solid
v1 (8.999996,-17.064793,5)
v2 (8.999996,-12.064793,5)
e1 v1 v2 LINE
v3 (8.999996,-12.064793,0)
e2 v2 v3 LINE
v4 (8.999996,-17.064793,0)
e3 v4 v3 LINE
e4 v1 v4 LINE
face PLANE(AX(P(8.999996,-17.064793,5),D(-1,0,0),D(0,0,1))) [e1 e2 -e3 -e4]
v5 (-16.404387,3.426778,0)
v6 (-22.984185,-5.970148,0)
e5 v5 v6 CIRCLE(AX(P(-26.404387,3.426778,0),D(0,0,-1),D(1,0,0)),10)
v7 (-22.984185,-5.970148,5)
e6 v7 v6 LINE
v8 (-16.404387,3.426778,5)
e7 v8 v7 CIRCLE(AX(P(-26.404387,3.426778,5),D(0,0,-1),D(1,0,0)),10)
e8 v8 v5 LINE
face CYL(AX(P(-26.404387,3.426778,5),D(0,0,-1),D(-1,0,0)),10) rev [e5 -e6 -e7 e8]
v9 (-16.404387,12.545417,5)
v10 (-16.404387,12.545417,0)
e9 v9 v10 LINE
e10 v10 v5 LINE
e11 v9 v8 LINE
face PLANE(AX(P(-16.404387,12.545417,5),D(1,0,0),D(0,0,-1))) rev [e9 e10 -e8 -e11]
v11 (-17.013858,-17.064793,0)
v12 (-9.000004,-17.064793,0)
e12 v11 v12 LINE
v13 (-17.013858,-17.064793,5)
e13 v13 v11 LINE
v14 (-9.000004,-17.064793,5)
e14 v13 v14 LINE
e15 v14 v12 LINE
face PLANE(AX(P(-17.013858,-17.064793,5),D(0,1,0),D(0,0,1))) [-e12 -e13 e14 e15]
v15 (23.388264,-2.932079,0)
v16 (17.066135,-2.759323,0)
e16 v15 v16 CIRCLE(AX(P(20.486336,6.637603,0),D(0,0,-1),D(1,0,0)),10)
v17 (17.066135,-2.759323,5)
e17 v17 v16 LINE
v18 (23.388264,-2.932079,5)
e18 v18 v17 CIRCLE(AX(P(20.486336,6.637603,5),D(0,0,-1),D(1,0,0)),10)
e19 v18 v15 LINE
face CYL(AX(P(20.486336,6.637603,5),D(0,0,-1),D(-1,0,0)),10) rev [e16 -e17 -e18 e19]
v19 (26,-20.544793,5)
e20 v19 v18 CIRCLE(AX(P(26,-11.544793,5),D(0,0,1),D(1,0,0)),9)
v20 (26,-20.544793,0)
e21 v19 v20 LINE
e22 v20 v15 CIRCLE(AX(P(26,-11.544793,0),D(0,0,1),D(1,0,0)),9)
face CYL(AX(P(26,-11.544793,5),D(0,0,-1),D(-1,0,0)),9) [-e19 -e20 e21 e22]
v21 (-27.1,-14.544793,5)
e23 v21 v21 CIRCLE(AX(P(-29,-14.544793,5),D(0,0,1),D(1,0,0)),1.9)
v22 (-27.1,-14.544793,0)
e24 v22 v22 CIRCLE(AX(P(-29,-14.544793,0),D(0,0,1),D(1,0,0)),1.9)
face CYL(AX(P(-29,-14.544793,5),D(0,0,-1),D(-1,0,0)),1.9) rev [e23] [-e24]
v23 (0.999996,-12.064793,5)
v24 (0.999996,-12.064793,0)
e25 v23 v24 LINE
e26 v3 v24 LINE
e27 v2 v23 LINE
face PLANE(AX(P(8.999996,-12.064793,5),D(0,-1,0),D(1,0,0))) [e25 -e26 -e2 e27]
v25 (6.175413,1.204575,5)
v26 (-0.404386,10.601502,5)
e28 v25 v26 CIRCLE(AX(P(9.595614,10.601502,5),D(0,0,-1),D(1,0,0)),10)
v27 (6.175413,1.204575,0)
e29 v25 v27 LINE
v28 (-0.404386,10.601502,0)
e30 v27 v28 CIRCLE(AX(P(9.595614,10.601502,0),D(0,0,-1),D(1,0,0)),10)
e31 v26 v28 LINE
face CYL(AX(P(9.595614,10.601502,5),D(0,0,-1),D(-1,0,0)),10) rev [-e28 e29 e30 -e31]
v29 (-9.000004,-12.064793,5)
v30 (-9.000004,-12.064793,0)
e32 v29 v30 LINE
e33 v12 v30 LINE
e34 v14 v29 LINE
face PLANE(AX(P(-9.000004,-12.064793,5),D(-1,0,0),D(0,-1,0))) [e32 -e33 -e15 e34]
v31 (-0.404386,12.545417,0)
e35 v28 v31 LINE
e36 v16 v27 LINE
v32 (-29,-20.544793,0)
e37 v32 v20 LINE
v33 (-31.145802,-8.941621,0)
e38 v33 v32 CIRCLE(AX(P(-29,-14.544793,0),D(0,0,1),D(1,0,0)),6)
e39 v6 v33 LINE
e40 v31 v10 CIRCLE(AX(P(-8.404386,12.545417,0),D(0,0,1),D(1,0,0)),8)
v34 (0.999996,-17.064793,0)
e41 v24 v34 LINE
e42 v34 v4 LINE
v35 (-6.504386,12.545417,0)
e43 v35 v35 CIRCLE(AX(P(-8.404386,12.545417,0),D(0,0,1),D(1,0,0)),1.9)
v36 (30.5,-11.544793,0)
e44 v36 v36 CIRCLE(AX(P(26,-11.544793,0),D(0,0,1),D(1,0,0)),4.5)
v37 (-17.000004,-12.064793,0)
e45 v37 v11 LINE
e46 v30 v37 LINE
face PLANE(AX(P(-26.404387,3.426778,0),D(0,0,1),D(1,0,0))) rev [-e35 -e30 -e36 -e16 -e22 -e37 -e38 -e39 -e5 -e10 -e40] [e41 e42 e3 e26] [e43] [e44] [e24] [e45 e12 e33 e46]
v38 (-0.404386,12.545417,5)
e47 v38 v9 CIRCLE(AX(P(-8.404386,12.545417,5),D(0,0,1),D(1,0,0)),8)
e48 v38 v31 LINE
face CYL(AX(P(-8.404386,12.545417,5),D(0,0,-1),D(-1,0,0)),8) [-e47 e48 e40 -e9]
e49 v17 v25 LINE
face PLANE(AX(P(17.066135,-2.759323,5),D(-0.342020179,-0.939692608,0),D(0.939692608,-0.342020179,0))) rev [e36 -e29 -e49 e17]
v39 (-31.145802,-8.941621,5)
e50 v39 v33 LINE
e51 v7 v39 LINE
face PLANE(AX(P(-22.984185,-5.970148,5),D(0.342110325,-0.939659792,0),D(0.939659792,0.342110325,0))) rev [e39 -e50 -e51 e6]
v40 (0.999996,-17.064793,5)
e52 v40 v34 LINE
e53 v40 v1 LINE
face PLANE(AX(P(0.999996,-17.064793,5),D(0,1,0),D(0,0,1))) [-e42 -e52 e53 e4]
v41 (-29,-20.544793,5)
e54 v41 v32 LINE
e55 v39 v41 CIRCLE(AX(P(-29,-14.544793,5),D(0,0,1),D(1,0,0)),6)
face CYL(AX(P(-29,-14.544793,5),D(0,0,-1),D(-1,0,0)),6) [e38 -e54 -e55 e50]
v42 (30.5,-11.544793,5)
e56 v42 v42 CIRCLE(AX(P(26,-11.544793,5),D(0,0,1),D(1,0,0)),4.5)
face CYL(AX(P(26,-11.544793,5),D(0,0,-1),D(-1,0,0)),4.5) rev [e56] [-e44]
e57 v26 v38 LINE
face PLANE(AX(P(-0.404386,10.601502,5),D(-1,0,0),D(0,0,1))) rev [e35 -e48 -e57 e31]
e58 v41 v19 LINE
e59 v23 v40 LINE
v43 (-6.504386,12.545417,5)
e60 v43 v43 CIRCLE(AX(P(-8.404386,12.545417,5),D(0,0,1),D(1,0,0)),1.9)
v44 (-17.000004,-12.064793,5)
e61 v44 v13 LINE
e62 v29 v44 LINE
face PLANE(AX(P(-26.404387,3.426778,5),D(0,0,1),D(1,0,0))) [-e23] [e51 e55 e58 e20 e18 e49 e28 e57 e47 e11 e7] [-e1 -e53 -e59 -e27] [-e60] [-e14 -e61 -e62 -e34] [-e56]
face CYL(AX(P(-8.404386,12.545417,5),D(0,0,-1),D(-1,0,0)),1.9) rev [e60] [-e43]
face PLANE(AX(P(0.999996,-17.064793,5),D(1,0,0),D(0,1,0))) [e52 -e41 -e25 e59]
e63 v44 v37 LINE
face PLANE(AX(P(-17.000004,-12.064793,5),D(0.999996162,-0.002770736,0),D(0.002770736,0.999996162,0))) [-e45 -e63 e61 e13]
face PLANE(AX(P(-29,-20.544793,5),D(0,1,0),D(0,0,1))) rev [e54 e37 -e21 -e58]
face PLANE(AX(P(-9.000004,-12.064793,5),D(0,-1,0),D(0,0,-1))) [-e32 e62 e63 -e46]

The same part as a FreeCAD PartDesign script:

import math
import FreeCAD as App
import Part
import Sketcher

V = App.Vector
Q = App.Units.Quantity

doc = App.newDocument("Part")
body = doc.addObject("PartDesign::Body", "Body")

sketch1 = body.newObject("Sketcher::SketchObject", "Sketch")
sketch1.AttachmentSupport = (doc.getObject("XY_Plane"), [""])
sketch1.MapMode = "FlatFace"
sketch1.addGeometry([
    Part.LineSegment(V(-23, -6, 0), V(-31.1, -8.9, 0)),
    Part.ArcOfCircle(Part.Circle(V(-29, -14.5, 0), V(0, 0, 1), 6), math.radians(111), math.radians(270)),
    Part.LineSegment(V(-29, -20.5, 0), V(26, -20.5, 0)),
    Part.ArcOfCircle(Part.Circle(V(26, -11.5, 0), V(0, 0, 1), 9), math.radians(-90), math.radians(107)),
    Part.ArcOfCircle(Part.Circle(V(20.5, 6.6, 0), V(0, 0, 1), 10), math.radians(-110), math.radians(-73)),
    Part.LineSegment(V(17.1, -2.8, 0), V(6.2, 1.2, 0)),
    Part.ArcOfCircle(Part.Circle(V(9.6, 10.6, 0), V(0, 0, 1), 10), math.radians(180), math.radians(250)),
    Part.LineSegment(V(-0.4, 10.6, 0), V(-0.4, 12.5, 0)),
    Part.ArcOfCircle(Part.Circle(V(-8.4, 12.5, 0), V(0, 0, 1), 8), math.radians(0), math.radians(180)),
    Part.LineSegment(V(-16.4, 12.5, 0), V(-16.4, 3.4, 0)),
    Part.ArcOfCircle(Part.Circle(V(-26.4, 3.4, 0), V(0, 0, 1), 10), math.radians(-70), math.radians(0)),
    Part.Circle(V(-29, -14.5, 0), V(0, 0, 1), 1.9),
    Part.LineSegment(V(-17, -17.1, 0), V(-17, -12.1, 0)),
    Part.LineSegment(V(-17, -12.1, 0), V(-9, -12.1, 0)),
    Part.LineSegment(V(-9, -12.1, 0), V(-9, -17.1, 0)),
    Part.LineSegment(V(-9, -17.1, 0), V(-17, -17.1, 0)),
    Part.LineSegment(V(9, -17.1, 0), V(1, -17.1, 0)),
    Part.LineSegment(V(1, -17.1, 0), V(1, -12.1, 0)),
    Part.LineSegment(V(1, -12.1, 0), V(9, -12.1, 0)),
    Part.LineSegment(V(9, -12.1, 0), V(9, -17.1, 0)),
    Part.Circle(V(26, -11.5, 0), V(0, 0, 1), 4.5),
    Part.Circle(V(-8.4, 12.5, 0), V(0, 0, 1), 1.9),
], False)
sketch1.addConstraint([
    Sketcher.Constraint("Coincident", 0, 2, 1, 1),
    Sketcher.Constraint("Tangent", 1, 2, 2, 1),
    Sketcher.Constraint("Tangent", 2, 2, 3, 1),
    Sketcher.Constraint("Tangent", 3, 2, 4, 2),
    Sketcher.Constraint("Tangent", 4, 1, 5, 1),
    Sketcher.Constraint("Tangent", 5, 2, 6, 2),
    Sketcher.Constraint("Tangent", 6, 1, 7, 1),
    Sketcher.Constraint("Tangent", 7, 2, 8, 1),
    Sketcher.Constraint("Tangent", 8, 2, 9, 1),
    Sketcher.Constraint("Tangent", 9, 2, 10, 2),
    Sketcher.Constraint("Coincident", 10, 1, 0, 1),
    Sketcher.Constraint("Coincident", 12, 2, 13, 1),
    Sketcher.Constraint("Coincident", 13, 2, 14, 1),
    Sketcher.Constraint("Coincident", 14, 2, 15, 1),
    Sketcher.Constraint("Coincident", 15, 2, 12, 1),
    Sketcher.Constraint("Coincident", 16, 2, 17, 1),
    Sketcher.Constraint("Coincident", 17, 2, 18, 1),
    Sketcher.Constraint("Coincident", 18, 2, 19, 1),
    Sketcher.Constraint("Coincident", 19, 2, 16, 1),
    Sketcher.Constraint("Horizontal", 2),
    Sketcher.Constraint("Vertical", 7),
    Sketcher.Constraint("Vertical", 9),
    Sketcher.Constraint("Horizontal", 13),
    Sketcher.Constraint("Vertical", 14),
    Sketcher.Constraint("Horizontal", 15),
    Sketcher.Constraint("Horizontal", 16),
    Sketcher.Constraint("Vertical", 17),
    Sketcher.Constraint("Horizontal", 18),
    Sketcher.Constraint("Vertical", 19),
    Sketcher.Constraint("Coincident", 11, 3, 1, 3),
    Sketcher.Constraint("Coincident", 20, 3, 3, 3),
    Sketcher.Constraint("Coincident", 21, 3, 8, 3),
    Sketcher.Constraint("Equal", 4, 6),
    Sketcher.Constraint("Equal", 6, 10),
    Sketcher.Constraint("Equal", 11, 21),
    Sketcher.Constraint("Symmetric", 13, 2, 18, 2, -2),
    Sketcher.Constraint("Horizontal", 15, 2, 16, 2),
    Sketcher.Constraint("Equal", 13, 16),
    Sketcher.Constraint("Diameter", 20, Q("9 mm")),
    Sketcher.Constraint("Radius", 1, Q("6 mm")),
    Sketcher.Constraint("Radius", 3, Q("9 mm")),
    Sketcher.Constraint("Radius", 4, Q("10 mm")),
    Sketcher.Constraint("Radius", 8, Q("8 mm")),
    Sketcher.Constraint("Diameter", 11, Q("3.8 mm")),
    Sketcher.Constraint("DistanceX", 2, 1, 2, 2, Q("55 mm")),
    Sketcher.Constraint("DistanceX", 13, 1, 13, 2, Q("8 mm")),
    Sketcher.Constraint("DistanceY", 14, 2, 14, 1, Q("5 mm")),
    Sketcher.Constraint("Angle", 5, Q("159.999998 deg")),
    Sketcher.Constraint("DistanceX", 1, 3, -1, 1, Q("29 mm")),
    Sketcher.Constraint("DistanceX", 14, 2, 16, 2, Q("10 mm")),
    Sketcher.Constraint("DistanceY", 11, 3, 12, 2, Q("2.48 mm")),
    Sketcher.Constraint("DistanceY", 9, 2, 9, 1, Q("9.11864 mm")),
    Sketcher.Constraint("DistanceY", -1, 1, 6, 3, Q("10.601501 mm")),
    Sketcher.Constraint("DistanceX", 0, 2, -1, 1, Q("31.145802 mm")),
    Sketcher.Constraint("DistanceY", 4, 3, 6, 3, Q("3.963899 mm")),
    Sketcher.Constraint("DistanceY", 0, 2, 10, 3, Q("12.368399 mm")),
    Sketcher.Constraint("DistanceX", 15, 2, 15, 1, Q("8.013854 mm")),
    Sketcher.Constraint("DistanceY", 7, 1, 7, 2, Q("1.943916 mm")),
    Sketcher.Constraint("DistanceY", 10, 1, -1, 1, Q("5.970148 mm")),
])
pad1 = body.newObject("PartDesign::Pad", "Pad")
pad1.Profile = sketch1
pad1.Length = 5

doc.recompute()
